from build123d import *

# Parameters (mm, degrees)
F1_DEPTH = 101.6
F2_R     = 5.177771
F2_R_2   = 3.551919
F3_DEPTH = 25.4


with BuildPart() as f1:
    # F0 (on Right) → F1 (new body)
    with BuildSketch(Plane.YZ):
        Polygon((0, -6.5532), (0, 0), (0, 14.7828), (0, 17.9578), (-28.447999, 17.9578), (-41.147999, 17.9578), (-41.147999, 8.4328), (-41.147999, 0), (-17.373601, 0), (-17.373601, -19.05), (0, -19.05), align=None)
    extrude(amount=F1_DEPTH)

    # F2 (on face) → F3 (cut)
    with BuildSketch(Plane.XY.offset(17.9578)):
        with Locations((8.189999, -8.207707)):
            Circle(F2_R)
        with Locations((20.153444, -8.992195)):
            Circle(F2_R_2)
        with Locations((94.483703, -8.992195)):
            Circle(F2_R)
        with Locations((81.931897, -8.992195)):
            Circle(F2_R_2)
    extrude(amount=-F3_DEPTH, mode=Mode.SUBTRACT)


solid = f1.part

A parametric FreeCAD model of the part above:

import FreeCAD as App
import Part
import Sketcher
Q = App.Units.Quantity


def add_polygon(sketch, points):
    """Adds a closed chain of lines whose ends are joined by coincident constraints."""
    first, n = sketch.GeometryCount, len(points)
    for a, b in zip(points, points[1:] + points[:1]):
        sketch.addGeometry(Part.LineSegment(App.Vector(*a, 0), App.Vector(*b, 0)), False)
    for i in range(n):
        sketch.addConstraint(Sketcher.Constraint("Coincident", first + i, 2, first + (i + 1) % n, 1))

doc = App.newDocument("Part")
body = doc.addObject("PartDesign::Body", "Body")

# Sketch on YZ plane
sketch1 = body.newObject("Sketcher::SketchObject", "Sketch")
sketch1.AttachmentSupport = (doc.getObject("YZ_Plane"), [""])
sketch1.MapMode = "FlatFace"
add_polygon(sketch1, [(0, 18), (-41, 18), (-41, 0), (-17, 0), (-17, -19), (0, -19)])  # lines 0-5
sketch1.addConstraint(Sketcher.Constraint("Horizontal", 0))
sketch1.addConstraint(Sketcher.Constraint("Vertical", 1))
sketch1.addConstraint(Sketcher.Constraint("Horizontal", 2))
sketch1.addConstraint(Sketcher.Constraint("Vertical", 3))
sketch1.addConstraint(Sketcher.Constraint("Horizontal", 4))
sketch1.addConstraint(Sketcher.Constraint("Vertical", 5))
sketch1.addConstraint(Sketcher.Constraint("PointOnObject", 1, 2, -1))
sketch1.addConstraint(Sketcher.Constraint("PointOnObject", 4, 2, -2))
sketch1.addConstraint(Sketcher.Constraint("DistanceX", 0, 2, 0, 1, Q("1.62 in")))
sketch1.addConstraint(Sketcher.Constraint("DistanceY", 3, 2, 3, 1, Q("0.75 in")))
sketch1.addConstraint(Sketcher.Constraint("DistanceX", 2, 1, 2, 2, Q("0.9359999 in")))
sketch1.addConstraint(Sketcher.Constraint("DistanceY", 1, 2, 1, 1, Q("0.707 in")))
pad1 = body.newObject("PartDesign::Pad", "Pad")
pad1.Profile = sketch1
pad1.Length = Q("4 in")

# Sketch on XY plane
sketch2 = body.newObject("Sketcher::SketchObject", "Sketch001")
sketch2.AttachmentSupport = (doc.getObject("XY_Plane"), [""])
sketch2.MapMode = "FlatFace"
sketch2.AttachmentOffset = App.Placement(App.Vector(0, 0, 0.707 * 25.4), App.Rotation())
sketch2.addGeometry(Part.Circle(App.Vector(8.2, -8.2, 0), App.Vector(0, 0, 1), 5.2), False)
sketch2.addGeometry(Part.Circle(App.Vector(20.2, -9, 0), App.Vector(0, 0, 1), 3.6), False)
sketch2.addGeometry(Part.Circle(App.Vector(94.5, -9, 0), App.Vector(0, 0, 1), 5.2), False)
sketch2.addGeometry(Part.Circle(App.Vector(81.9, -9, 0), App.Vector(0, 0, 1), 3.6), False)
sketch2.addConstraint(Sketcher.Constraint("Equal", 0, 2))
sketch2.addConstraint(Sketcher.Constraint("Equal", 1, 3))
sketch2.addConstraint(Sketcher.Constraint("Horizontal", 1, 3, 2, 3))
sketch2.addConstraint(Sketcher.Constraint("Horizontal", 2, 3, 3, 3))
sketch2.addConstraint(Sketcher.Constraint("Diameter", 0, 10.355542))
sketch2.addConstraint(Sketcher.Constraint("Diameter", 1, 7.103838))
sketch2.addConstraint(Sketcher.Constraint("DistanceX", -1, 1, 0, 3, 8.189999))
sketch2.addConstraint(Sketcher.Constraint("DistanceX", 0, 3, 3, 3, 73.741898))
sketch2.addConstraint(Sketcher.Constraint("DistanceY", 1, 3, 0, 3, 0.784488))
sketch2.addConstraint(Sketcher.Constraint("DistanceX", 1, 3, 2, 3, 74.330259))
sketch2.addConstraint(Sketcher.Constraint("DistanceY", 0, 3, -1, 1, 8.207707))
sketch2.addConstraint(Sketcher.Constraint("DistanceX", -1, 1, 1, 3, 20.153444))
pocket1 = body.newObject("PartDesign::Pocket", "Pocket")
pocket1.Profile = sketch2
pocket1.Length = Q("1 in")

doc.recompute()
